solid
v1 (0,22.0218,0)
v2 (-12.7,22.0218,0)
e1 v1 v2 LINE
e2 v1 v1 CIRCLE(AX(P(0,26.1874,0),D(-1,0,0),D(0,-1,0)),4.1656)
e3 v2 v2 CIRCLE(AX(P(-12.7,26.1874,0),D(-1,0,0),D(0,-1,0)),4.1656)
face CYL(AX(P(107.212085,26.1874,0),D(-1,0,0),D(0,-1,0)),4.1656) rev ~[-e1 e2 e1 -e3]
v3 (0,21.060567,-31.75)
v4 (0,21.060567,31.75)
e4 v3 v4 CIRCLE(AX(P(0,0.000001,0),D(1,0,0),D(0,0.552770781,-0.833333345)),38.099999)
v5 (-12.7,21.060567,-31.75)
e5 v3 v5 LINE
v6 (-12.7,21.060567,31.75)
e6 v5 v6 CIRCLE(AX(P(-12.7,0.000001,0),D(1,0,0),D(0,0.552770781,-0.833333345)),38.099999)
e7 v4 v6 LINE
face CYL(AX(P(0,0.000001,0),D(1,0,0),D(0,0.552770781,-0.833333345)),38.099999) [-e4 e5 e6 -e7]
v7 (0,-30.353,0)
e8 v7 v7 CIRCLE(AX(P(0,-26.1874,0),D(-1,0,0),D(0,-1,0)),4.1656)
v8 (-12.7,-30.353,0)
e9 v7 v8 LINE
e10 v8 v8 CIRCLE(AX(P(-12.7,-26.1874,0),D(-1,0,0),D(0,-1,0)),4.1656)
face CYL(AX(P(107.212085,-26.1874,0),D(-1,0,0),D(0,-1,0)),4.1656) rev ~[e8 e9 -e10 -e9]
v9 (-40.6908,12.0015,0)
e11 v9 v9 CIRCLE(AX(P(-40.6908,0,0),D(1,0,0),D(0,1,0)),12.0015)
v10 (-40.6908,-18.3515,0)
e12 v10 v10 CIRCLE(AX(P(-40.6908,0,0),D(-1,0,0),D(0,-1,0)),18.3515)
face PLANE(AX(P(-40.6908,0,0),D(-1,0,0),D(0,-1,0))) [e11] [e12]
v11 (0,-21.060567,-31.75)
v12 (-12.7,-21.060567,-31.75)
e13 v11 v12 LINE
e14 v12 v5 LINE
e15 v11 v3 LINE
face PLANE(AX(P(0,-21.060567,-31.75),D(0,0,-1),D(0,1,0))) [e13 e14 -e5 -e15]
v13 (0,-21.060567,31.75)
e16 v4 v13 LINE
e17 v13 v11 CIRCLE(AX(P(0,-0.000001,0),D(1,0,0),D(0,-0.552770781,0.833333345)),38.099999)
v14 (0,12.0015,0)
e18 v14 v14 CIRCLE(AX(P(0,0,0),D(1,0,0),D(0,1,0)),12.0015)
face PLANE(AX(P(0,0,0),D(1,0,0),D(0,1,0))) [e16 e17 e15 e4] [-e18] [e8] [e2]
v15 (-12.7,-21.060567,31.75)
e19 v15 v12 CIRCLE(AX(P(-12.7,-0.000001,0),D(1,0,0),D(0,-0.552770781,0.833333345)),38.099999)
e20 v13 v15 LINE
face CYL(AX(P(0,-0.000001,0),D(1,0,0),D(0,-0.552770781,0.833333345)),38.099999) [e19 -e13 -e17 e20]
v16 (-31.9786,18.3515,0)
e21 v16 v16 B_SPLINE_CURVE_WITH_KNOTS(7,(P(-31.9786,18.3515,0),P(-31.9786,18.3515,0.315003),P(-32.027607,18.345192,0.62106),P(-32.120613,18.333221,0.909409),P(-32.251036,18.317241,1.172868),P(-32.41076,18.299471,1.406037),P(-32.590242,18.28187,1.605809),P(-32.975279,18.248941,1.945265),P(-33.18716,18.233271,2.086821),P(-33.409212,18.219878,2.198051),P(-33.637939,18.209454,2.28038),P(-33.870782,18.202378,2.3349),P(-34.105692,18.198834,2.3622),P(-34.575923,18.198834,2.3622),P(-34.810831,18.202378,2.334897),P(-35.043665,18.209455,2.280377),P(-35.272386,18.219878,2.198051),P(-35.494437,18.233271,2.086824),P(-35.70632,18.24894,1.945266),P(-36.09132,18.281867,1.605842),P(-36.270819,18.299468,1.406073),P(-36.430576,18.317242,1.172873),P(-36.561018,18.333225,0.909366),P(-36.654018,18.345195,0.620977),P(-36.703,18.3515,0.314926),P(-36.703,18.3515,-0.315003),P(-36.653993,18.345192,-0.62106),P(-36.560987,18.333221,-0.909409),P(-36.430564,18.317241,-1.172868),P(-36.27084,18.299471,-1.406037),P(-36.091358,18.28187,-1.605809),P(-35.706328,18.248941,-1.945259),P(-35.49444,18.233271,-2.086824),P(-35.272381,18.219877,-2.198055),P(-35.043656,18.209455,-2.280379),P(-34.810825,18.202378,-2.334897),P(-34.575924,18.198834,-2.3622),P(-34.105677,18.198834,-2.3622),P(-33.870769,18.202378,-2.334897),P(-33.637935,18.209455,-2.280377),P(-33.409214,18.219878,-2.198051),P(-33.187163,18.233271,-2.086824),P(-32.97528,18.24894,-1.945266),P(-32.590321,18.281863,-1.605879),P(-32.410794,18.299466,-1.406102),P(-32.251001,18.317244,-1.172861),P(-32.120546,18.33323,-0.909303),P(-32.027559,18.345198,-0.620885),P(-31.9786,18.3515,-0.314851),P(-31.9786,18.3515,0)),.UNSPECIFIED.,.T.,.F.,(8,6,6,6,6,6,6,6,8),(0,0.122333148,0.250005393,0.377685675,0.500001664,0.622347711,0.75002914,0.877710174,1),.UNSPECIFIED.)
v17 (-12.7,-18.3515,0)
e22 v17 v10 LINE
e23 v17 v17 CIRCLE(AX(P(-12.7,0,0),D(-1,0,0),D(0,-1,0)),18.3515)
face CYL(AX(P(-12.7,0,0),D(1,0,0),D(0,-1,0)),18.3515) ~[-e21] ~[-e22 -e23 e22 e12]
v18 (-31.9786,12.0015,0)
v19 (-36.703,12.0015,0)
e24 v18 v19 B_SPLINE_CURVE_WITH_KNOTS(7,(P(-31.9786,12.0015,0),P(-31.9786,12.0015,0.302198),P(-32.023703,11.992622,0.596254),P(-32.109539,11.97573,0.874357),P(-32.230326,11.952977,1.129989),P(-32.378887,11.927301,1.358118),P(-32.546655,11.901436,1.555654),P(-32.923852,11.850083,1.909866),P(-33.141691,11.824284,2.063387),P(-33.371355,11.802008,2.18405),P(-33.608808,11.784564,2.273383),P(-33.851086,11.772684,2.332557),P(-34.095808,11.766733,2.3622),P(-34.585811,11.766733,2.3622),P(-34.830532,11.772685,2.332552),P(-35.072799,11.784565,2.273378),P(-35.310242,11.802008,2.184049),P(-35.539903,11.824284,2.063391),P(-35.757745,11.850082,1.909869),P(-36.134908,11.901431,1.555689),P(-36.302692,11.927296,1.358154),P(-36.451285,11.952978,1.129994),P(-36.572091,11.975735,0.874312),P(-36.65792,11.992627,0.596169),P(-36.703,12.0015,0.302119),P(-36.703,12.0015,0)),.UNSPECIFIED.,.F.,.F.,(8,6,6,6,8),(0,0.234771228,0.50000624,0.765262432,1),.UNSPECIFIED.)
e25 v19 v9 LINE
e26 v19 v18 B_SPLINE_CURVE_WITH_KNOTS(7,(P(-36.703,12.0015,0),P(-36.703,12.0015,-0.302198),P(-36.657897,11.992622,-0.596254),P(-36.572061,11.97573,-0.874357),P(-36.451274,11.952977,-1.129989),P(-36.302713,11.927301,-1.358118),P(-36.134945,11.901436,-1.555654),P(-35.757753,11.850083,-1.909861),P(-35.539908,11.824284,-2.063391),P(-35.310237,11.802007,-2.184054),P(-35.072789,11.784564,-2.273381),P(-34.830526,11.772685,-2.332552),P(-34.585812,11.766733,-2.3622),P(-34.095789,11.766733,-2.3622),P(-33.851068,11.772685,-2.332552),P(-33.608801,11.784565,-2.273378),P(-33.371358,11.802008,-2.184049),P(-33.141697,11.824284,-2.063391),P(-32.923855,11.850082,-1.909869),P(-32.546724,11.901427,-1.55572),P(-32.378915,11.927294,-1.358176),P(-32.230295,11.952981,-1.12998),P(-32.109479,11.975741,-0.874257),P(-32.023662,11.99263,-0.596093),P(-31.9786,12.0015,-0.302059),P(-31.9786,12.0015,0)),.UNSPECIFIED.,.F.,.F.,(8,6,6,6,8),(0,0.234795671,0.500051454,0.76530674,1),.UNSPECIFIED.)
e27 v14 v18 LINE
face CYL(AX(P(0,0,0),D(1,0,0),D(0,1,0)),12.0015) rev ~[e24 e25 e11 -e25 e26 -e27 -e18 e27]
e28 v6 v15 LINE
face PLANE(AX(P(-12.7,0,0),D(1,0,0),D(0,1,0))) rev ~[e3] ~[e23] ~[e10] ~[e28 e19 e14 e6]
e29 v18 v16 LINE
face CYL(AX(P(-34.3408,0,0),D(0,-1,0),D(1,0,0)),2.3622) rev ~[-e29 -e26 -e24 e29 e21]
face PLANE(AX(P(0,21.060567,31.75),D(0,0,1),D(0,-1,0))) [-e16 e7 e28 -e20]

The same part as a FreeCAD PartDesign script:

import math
import FreeCAD as App
import Part
import Sketcher
Q = App.Units.Quantity

doc = App.newDocument("Part")
params = doc.addObject("Spreadsheet::Sheet", "Params")
for row, (alias, value) in enumerate([
    ("sketch1_radius", "1.5 in"),
    ("pad1_length", "0.5 in"),
    ("sketch2_diameter", "1.445 in"),
    ("pad2_length", "1.102 in"),
    ("sketch3_diameter", "0.945 in"),
    ("sketch4_diameter", "0.328 in"),
    ("hole_diameter", "0.328 in"),
    ("sketch5_diameter", "0.186 in"),
    ("pocket2_length", "1 in"),
], start=1):
    params.set(f"A{row}", alias)
    params.set(f"B{row}", "=" + value)
    params.setAlias(f"B{row}", alias)

body = doc.addObject("PartDesign::Body", "Body")

# Sketch on YZ plane
sketch1 = doc.addObject("Sketcher::SketchObject", "Sketch")
body.addObject(sketch1)
sketch1.AttachmentSupport = (doc.YZ_Plane, [""])
sketch1.MapMode = "FlatFace"
sketch1.addGeometry([
    Part.LineSegment(App.Vector(21, 32, 0), App.Vector(-21, 32, 0)),
    Part.ArcOfCircle(Part.Circle(App.Vector(0, 0, 0), App.Vector(0, 0, 1), 38), math.radians(124), math.radians(236)),
    Part.LineSegment(App.Vector(-21, -32, 0), App.Vector(21, -32, 0)),
    Part.ArcOfCircle(Part.Circle(App.Vector(0, 0, 0), App.Vector(0, 0, 1), 38), math.radians(-56), math.radians(56)),
], False)
sketch1.addConstraint([
    Sketcher.Constraint("Coincident", 0, 2, 1, 1),
    Sketcher.Constraint("Coincident", 1, 2, 2, 1),
    Sketcher.Constraint("Coincident", 2, 2, 3, 1),
    Sketcher.Constraint("Coincident", 3, 2, 0, 1),
    Sketcher.Constraint("Horizontal", 0),
    Sketcher.Constraint("Horizontal", 2),
    Sketcher.Constraint("Coincident", 1, 3, -1, 1),
    Sketcher.Constraint("Coincident", 3, 3, -1, 1),
    Sketcher.Constraint("Equal", 1, 3),
    Sketcher.Constraint("Vertical", 0, 2, 1, 2),
    Sketcher.Constraint("Radius", 1, Q("1.5 in")),
    Sketcher.Constraint("DistanceY", 1, 2, 0, 2, Q("2.5 in")),
])
sketch1.setExpression("Constraints[10]", "Params.sketch1_radius")
pad1 = doc.addObject("PartDesign::Pad", "Pad")
body.addObject(pad1)
pad1.Profile = sketch1
pad1.setExpression("Length", "Params.pad1_length")
pad1.Reversed = True

# Sketch on YZ plane
sketch2 = doc.addObject("Sketcher::SketchObject", "Sketch001")
body.addObject(sketch2)
sketch2.AttachmentSupport = (doc.YZ_Plane, [""])
sketch2.MapMode = "FlatFace"
sketch2.AttachmentOffset = App.Placement(App.Vector(0, 0, -0.5 * 25.4), App.Rotation())
sketch2.addGeometry(Part.Circle(App.Vector(0, 0, 0), App.Vector(0, 0, 1), 18), False)
sketch2.addConstraint([
    Sketcher.Constraint("Coincident", 0, 3, -1, 1),
    Sketcher.Constraint("Diameter", 0, Q("1.445 in")),
])
sketch2.setExpression("Constraints[1]", "Params.sketch2_diameter")
pad2 = doc.addObject("PartDesign::Pad", "Pad001")
body.addObject(pad2)
pad2.Profile = sketch2
pad2.setExpression("Length", "Params.pad2_length")
pad2.Reversed = True

# Sketch on YZ plane
sketch3 = doc.addObject("Sketcher::SketchObject", "Sketch002")
body.addObject(sketch3)
sketch3.AttachmentSupport = (doc.YZ_Plane, [""])
sketch3.MapMode = "FlatFace"
sketch3.addGeometry(Part.Circle(App.Vector(0, 0, 0), App.Vector(0, 0, 1), 12), False)
sketch3.addConstraint([
    Sketcher.Constraint("Coincident", 0, 3, -1, 1),
    Sketcher.Constraint("Diameter", 0, Q("0.945 in")),
])
sketch3.setExpression("Constraints[1]", "Params.sketch3_diameter")
pocket1 = doc.addObject("PartDesign::Pocket", "Pocket")
body.addObject(pocket1)
pocket1.Profile = sketch3
pocket1.Type = "ThroughAll"

# Sketch on YZ plane
sketch4 = doc.addObject("Sketcher::SketchObject", "Sketch003")
body.addObject(sketch4)
sketch4.AttachmentSupport = (doc.YZ_Plane, [""])
sketch4.MapMode = "FlatFace"
sketch4.addGeometry([
    Part.Circle(App.Vector(26.2, 0, 0), App.Vector(0, 0, 1), 4.2),
    Part.Circle(App.Vector(-26.2, 0, 0), App.Vector(0, 0, 1), 4.2),
], False)
sketch4.addConstraint([
    Sketcher.Constraint("Equal", 0, 1),
    Sketcher.Constraint("Symmetric", 0, 3, 1, 3, -1, 1),
    Sketcher.Constraint("PointOnObject", 0, 3, -1),
    Sketcher.Constraint("Diameter", 0, Q("0.328 in")),
    Sketcher.Constraint("DistanceX", -1, 1, 0, 3, Q("1.031 in")),
])
sketch4.setExpression("Constraints[3]", "Params.sketch4_diameter")
doc.recompute()
hole = doc.addObject("PartDesign::Hole", "Hole")
body.addObject(hole)
hole.Profile = sketch4
hole.ThreadType = "None"
hole.setExpression("Diameter", "Params.hole_diameter")
hole.DepthType = "ThroughAll"

# Sketch on XZ plane
sketch5 = doc.addObject("Sketcher::SketchObject", "Sketch004")
body.addObject(sketch5)
sketch5.AttachmentSupport = (doc.XZ_Plane, [""])
sketch5.MapMode = "FlatFace"
sketch5.addGeometry(Part.Circle(App.Vector(-34.3, 0, 0), App.Vector(0, 0, 1), 2.4), False)
sketch5.addConstraint([
    Sketcher.Constraint("PointOnObject", 0, 3, -1),
    Sketcher.Constraint("Diameter", 0, Q("0.186 in")),
    Sketcher.Constraint("DistanceX", 0, 3, -1, 1, Q("1.352 in")),
])
sketch5.setExpression("Constraints[1]", "Params.sketch5_diameter")
pocket2 = doc.addObject("PartDesign::Pocket", "Pocket001")
body.addObject(pocket2)
pocket2.Profile = sketch5
pocket2.setExpression("Length", "Params.pocket2_length")

doc.recompute()
